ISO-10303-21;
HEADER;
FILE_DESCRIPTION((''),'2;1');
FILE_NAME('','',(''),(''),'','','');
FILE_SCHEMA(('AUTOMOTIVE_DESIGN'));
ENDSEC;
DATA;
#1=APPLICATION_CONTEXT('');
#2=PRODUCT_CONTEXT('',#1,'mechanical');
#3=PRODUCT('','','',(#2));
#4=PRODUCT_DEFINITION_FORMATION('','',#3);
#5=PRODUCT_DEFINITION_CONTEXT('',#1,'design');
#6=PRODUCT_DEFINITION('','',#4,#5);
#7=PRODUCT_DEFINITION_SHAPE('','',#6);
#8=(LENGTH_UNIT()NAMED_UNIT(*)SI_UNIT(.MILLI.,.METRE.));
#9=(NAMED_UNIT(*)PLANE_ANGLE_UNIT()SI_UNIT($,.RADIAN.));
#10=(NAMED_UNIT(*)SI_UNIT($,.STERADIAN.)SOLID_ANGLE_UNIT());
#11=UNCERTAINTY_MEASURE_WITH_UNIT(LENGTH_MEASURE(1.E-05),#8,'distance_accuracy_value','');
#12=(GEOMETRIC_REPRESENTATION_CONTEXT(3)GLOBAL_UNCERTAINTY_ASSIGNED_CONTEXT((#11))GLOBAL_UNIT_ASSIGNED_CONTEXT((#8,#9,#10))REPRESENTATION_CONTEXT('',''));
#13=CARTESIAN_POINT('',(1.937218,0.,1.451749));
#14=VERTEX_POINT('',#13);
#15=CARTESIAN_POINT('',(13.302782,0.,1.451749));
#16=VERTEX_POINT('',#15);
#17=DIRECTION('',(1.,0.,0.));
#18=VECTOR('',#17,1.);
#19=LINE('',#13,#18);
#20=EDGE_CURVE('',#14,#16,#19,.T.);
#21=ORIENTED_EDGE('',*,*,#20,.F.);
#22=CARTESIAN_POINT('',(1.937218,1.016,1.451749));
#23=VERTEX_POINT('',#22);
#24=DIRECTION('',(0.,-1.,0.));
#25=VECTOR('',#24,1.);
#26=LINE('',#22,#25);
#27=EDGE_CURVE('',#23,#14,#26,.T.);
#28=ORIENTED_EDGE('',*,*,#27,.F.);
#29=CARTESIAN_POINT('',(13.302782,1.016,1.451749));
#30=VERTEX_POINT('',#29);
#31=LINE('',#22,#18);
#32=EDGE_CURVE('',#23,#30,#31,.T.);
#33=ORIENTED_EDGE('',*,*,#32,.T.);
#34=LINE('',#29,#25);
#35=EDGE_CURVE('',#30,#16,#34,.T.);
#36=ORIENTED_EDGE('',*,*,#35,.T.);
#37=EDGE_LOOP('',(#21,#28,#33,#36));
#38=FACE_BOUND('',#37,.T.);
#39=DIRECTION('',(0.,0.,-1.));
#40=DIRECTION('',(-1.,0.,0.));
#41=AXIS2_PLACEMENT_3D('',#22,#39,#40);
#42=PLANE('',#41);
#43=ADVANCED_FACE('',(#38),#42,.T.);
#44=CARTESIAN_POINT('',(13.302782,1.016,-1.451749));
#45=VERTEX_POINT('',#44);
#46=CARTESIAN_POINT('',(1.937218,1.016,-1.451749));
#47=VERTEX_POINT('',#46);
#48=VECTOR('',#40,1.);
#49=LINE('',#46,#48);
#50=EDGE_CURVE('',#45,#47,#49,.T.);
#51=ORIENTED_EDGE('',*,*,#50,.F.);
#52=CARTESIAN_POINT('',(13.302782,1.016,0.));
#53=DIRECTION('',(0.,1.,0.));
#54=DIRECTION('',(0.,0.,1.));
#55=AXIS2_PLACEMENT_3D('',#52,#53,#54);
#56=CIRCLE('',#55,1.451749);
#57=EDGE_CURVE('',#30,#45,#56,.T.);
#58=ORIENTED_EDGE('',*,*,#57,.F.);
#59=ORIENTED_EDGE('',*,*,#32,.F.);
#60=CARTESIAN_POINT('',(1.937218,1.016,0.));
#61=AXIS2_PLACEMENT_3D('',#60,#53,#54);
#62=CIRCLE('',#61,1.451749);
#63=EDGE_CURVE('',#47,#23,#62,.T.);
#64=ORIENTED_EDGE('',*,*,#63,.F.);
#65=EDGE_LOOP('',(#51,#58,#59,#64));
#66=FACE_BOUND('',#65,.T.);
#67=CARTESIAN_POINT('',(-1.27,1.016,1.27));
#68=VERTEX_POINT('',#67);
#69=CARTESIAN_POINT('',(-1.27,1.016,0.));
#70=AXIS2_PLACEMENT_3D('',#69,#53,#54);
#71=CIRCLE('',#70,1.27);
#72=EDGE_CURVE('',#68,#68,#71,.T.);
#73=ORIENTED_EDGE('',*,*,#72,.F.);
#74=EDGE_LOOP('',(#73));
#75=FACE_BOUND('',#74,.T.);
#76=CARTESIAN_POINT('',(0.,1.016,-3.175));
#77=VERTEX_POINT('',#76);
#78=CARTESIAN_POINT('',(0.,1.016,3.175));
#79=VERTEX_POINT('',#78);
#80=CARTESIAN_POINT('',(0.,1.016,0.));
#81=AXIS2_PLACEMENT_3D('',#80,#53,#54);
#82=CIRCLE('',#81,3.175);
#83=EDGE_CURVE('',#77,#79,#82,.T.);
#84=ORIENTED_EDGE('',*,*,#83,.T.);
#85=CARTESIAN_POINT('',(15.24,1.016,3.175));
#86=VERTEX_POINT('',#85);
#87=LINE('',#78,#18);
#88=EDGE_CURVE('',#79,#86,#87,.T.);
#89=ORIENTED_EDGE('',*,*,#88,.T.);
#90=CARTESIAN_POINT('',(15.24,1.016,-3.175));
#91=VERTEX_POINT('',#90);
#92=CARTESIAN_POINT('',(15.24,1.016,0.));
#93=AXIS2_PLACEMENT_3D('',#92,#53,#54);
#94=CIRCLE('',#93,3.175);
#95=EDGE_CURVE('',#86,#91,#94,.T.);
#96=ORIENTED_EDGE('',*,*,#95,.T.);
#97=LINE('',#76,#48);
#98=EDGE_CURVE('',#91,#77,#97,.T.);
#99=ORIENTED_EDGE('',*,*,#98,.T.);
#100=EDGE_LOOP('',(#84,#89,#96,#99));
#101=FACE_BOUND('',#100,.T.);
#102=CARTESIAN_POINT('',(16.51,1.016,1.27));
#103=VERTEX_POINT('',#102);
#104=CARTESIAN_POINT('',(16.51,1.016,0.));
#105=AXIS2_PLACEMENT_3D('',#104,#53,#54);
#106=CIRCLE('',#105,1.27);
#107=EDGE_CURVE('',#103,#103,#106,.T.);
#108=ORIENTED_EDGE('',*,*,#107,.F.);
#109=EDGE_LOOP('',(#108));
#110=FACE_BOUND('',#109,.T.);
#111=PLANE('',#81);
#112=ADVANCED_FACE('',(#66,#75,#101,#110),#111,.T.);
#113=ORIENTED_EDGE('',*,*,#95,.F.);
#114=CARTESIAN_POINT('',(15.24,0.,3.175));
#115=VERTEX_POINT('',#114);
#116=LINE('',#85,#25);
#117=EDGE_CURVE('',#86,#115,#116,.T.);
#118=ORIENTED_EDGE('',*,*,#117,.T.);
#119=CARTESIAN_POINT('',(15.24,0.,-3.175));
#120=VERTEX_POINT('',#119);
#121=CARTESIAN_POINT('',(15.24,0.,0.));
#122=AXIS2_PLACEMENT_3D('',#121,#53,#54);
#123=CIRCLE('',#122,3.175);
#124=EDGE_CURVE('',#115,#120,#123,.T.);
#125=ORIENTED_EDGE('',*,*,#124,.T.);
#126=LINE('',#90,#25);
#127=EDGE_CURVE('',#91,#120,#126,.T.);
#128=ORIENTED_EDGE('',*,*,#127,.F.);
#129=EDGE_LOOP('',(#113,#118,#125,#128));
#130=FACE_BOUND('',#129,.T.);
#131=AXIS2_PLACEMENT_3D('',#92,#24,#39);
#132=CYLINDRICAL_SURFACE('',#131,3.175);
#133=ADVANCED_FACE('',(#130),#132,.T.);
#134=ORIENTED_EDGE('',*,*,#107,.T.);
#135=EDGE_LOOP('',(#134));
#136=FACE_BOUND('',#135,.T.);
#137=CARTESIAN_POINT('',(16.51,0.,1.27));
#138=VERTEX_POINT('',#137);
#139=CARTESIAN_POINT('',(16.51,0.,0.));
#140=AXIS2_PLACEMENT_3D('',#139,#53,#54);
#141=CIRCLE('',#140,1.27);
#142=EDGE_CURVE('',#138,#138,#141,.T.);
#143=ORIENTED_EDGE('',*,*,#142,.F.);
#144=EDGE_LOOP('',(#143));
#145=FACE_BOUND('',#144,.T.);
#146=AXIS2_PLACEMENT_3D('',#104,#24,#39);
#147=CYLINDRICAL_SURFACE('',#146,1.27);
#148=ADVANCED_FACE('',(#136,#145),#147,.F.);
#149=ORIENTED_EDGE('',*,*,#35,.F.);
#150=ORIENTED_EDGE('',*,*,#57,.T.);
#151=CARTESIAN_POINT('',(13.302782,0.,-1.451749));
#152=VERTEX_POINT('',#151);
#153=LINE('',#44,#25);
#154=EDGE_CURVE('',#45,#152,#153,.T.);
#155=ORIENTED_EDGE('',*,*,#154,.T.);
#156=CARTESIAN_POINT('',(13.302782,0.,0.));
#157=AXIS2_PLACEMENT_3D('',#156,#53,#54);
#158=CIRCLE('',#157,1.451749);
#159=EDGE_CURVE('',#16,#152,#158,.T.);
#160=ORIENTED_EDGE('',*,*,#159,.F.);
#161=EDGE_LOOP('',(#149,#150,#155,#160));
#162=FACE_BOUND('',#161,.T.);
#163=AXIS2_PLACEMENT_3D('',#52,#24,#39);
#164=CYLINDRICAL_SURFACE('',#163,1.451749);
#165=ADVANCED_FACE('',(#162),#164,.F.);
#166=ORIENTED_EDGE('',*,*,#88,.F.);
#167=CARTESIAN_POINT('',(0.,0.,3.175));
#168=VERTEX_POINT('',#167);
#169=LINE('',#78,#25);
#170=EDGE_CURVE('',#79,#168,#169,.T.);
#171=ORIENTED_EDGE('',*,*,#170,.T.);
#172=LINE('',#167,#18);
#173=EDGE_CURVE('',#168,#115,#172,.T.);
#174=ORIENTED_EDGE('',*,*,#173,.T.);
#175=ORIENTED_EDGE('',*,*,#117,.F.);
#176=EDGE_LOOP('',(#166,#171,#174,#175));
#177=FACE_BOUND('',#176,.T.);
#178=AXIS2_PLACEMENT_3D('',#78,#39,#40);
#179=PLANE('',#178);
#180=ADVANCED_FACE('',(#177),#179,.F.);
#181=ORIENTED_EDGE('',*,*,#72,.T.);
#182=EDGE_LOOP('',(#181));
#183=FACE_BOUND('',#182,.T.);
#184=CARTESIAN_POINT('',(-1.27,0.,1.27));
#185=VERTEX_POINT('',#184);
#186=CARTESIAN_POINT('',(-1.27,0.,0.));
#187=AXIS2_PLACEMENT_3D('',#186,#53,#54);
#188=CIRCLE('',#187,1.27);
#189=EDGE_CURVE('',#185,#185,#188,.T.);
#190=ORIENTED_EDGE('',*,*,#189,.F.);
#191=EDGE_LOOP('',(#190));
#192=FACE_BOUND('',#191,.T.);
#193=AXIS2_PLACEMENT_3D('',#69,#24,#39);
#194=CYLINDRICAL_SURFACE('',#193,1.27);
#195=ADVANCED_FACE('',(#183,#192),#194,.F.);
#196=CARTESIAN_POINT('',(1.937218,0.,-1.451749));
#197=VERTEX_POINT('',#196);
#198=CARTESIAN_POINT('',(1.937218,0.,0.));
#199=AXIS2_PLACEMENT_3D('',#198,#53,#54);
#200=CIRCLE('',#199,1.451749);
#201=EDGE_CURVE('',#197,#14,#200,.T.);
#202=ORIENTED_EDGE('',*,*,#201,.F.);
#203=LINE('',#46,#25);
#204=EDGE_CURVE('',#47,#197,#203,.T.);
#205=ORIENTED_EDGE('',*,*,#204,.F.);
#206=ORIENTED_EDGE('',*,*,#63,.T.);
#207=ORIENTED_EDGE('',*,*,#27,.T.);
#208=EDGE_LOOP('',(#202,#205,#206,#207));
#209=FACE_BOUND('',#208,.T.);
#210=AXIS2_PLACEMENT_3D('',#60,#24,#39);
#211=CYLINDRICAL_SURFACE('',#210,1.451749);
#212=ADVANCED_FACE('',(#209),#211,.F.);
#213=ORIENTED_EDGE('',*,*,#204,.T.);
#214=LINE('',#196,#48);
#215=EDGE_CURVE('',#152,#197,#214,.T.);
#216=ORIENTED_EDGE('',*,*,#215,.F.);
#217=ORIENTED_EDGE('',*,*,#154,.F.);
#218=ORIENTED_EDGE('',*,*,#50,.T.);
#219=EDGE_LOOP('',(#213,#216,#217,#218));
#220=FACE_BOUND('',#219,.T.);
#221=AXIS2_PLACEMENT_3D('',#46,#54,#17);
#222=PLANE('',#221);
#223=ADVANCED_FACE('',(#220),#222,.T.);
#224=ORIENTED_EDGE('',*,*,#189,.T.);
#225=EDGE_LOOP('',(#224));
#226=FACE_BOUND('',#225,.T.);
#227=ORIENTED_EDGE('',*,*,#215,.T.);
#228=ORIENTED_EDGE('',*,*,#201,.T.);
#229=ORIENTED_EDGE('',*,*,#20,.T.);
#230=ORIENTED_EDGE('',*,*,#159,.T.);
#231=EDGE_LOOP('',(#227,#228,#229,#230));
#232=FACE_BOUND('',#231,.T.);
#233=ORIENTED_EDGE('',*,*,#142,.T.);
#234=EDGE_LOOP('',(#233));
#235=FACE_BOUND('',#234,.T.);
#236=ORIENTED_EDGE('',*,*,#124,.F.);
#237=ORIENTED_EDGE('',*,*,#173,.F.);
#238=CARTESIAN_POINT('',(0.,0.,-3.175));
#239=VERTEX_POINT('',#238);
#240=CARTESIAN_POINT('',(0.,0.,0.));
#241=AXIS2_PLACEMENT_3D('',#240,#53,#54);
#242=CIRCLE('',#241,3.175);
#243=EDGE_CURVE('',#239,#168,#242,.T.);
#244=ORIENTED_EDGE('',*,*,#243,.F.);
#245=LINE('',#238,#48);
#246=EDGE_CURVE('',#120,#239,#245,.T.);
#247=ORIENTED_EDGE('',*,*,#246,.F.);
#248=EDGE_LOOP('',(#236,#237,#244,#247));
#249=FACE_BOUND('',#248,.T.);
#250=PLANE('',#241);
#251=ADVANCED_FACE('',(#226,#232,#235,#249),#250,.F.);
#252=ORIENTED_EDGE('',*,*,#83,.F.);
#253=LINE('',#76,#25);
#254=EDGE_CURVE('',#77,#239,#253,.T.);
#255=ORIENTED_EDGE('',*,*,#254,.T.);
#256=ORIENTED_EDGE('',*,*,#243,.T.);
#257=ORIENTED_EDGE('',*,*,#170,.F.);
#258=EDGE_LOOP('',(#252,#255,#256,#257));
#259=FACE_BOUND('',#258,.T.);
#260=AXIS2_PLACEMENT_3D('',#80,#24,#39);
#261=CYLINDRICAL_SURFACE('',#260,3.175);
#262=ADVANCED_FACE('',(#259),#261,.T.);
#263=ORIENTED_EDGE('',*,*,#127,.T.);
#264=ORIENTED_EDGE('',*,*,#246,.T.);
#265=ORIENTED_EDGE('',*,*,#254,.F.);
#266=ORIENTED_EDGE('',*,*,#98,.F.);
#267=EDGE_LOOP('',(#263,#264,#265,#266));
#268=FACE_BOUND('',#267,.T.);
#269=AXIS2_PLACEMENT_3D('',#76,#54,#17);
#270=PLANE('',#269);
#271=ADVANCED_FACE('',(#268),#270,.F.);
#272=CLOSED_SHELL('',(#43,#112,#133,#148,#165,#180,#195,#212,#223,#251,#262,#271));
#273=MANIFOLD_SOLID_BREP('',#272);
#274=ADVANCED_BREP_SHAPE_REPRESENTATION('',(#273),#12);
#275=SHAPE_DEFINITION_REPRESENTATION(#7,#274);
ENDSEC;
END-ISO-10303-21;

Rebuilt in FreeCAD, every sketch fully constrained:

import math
import FreeCAD as App
import Part
import Sketcher
Q = App.Units.Quantity

doc = App.newDocument("Part")
params = doc.addObject("Spreadsheet::Sheet", "Params")
for row, (alias, value) in enumerate([
    ("sketch1_diameter", "0.1 in"),
    ("sketch1_width", "0.6 in"),
    ("sketch1_radius", "0.125 in"),
    ("pad1_length", "0.04 in"),
], start=1):
    params.set(f"A{row}", alias)
    params.set(f"B{row}", "=" + value)
    params.setAlias(f"B{row}", alias)

body = doc.addObject("PartDesign::Body", "Body")

sketch1 = doc.addObject("Sketcher::SketchObject", "Sketch")
body.addObject(sketch1)
sketch1.AttachmentSupport = (doc.XZ_Plane, [""])
sketch1.MapMode = "FlatFace"
sketch1.addGeometry(Part.LineSegment(App.Vector(15.2, -3.2, 0), App.Vector(0, -3.2, 0)), False)
sketch1.addGeometry(Part.ArcOfCircle(Part.Circle(App.Vector(0, 0, 0), App.Vector(0, 0, 1), 3.2), math.radians(90), math.radians(270)), False)
sketch1.addGeometry(Part.LineSegment(App.Vector(0, 3.2, 0), App.Vector(15.2, 3.2, 0)), False)
sketch1.addGeometry(Part.ArcOfCircle(Part.Circle(App.Vector(15.2, 0, 0), App.Vector(0, 0, 1), 3.2), math.radians(-90), math.radians(90)), False)
sketch1.addGeometry(Part.Circle(App.Vector(16.5, 0, 0), App.Vector(0, 0, 1), 1.3), False)
sketch1.addGeometry(Part.LineSegment(App.Vector(1.9, -1.5, 0), App.Vector(13.3, -1.5, 0)), False)
sketch1.addGeometry(Part.ArcOfCircle(Part.Circle(App.Vector(13.3, 0, 0), App.Vector(0, 0, 1), 1.5), math.radians(-90), math.radians(90)), False)
sketch1.addGeometry(Part.LineSegment(App.Vector(13.3, 1.5, 0), App.Vector(1.9, 1.5, 0)), False)
sketch1.addGeometry(Part.ArcOfCircle(Part.Circle(App.Vector(1.9, 0, 0), App.Vector(0, 0, 1), 1.5), math.radians(90), math.radians(270)), False)
sketch1.addGeometry(Part.Circle(App.Vector(-1.3, 0, 0), App.Vector(0, 0, 1), 1.3), False)
sketch1.addConstraint(Sketcher.Constraint("Tangent", 0, 2, 1, 2))
sketch1.addConstraint(Sketcher.Constraint("Tangent", 1, 1, 2, 1))
sketch1.addConstraint(Sketcher.Constraint("Tangent", 2, 2, 3, 2))
sketch1.addConstraint(Sketcher.Constraint("Tangent", 3, 1, 0, 1))
sketch1.addConstraint(Sketcher.Constraint("Tangent", 5, 2, 6, 1))
sketch1.addConstraint(Sketcher.Constraint("Tangent", 6, 2, 7, 1))
sketch1.addConstraint(Sketcher.Constraint("Tangent", 7, 2, 8, 1))
sketch1.addConstraint(Sketcher.Constraint("Tangent", 8, 2, 5, 1))
sketch1.addConstraint(Sketcher.Constraint("Horizontal", 0))
sketch1.addConstraint(Sketcher.Constraint("Horizontal", 2))
sketch1.addConstraint(Sketcher.Constraint("Horizontal", 5))
sketch1.addConstraint(Sketcher.Constraint("Horizontal", 7))
sketch1.addConstraint(Sketcher.Constraint("Coincident", 1, 3, -1, 1))
sketch1.addConstraint(Sketcher.Constraint("Equal", 4, 9))
sketch1.addConstraint(Sketcher.Constraint("PointOnObject", 4, 3, -1))
sketch1.addConstraint(Sketcher.Constraint("PointOnObject", 6, 3, -1))
sketch1.addConstraint(Sketcher.Constraint("PointOnObject", 9, 3, -1))
sketch1.addConstraint(Sketcher.Constraint("Diameter", 4, Q("0.1 in")))
sketch1.addConstraint(Sketcher.Constraint("DistanceX", 0, 2, 0, 1, Q("0.6 in")))
sketch1.addConstraint(Sketcher.Constraint("Radius", 1, Q("0.125 in")))
sketch1.addConstraint(Sketcher.Constraint("DistanceX", 9, 3, 4, 3, Q("0.7 in")))
sketch1.addConstraint(Sketcher.Constraint("DistanceX", -1, 1, 4, 3, Q("0.65 in")))
sketch1.addConstraint(Sketcher.Constraint("Radius", 6, 1.451749))
sketch1.addConstraint(Sketcher.Constraint("DistanceX", 5, 1, 5, 2, 11.365565))
sketch1.addConstraint(Sketcher.Constraint("DistanceX", -1, 1, 6, 3, 13.302782))
sketch1.setExpression("Constraints[17]", "Params.sketch1_diameter")
sketch1.setExpression("Constraints[18]", "Params.sketch1_width")
sketch1.setExpression("Constraints[19]", "Params.sketch1_radius")
pad1 = doc.addObject("PartDesign::Pad", "Pad")
body.addObject(pad1)
pad1.Profile = sketch1
pad1.setExpression("Length", "Params.pad1_length")
pad1.Reversed = True

doc.recompute()
